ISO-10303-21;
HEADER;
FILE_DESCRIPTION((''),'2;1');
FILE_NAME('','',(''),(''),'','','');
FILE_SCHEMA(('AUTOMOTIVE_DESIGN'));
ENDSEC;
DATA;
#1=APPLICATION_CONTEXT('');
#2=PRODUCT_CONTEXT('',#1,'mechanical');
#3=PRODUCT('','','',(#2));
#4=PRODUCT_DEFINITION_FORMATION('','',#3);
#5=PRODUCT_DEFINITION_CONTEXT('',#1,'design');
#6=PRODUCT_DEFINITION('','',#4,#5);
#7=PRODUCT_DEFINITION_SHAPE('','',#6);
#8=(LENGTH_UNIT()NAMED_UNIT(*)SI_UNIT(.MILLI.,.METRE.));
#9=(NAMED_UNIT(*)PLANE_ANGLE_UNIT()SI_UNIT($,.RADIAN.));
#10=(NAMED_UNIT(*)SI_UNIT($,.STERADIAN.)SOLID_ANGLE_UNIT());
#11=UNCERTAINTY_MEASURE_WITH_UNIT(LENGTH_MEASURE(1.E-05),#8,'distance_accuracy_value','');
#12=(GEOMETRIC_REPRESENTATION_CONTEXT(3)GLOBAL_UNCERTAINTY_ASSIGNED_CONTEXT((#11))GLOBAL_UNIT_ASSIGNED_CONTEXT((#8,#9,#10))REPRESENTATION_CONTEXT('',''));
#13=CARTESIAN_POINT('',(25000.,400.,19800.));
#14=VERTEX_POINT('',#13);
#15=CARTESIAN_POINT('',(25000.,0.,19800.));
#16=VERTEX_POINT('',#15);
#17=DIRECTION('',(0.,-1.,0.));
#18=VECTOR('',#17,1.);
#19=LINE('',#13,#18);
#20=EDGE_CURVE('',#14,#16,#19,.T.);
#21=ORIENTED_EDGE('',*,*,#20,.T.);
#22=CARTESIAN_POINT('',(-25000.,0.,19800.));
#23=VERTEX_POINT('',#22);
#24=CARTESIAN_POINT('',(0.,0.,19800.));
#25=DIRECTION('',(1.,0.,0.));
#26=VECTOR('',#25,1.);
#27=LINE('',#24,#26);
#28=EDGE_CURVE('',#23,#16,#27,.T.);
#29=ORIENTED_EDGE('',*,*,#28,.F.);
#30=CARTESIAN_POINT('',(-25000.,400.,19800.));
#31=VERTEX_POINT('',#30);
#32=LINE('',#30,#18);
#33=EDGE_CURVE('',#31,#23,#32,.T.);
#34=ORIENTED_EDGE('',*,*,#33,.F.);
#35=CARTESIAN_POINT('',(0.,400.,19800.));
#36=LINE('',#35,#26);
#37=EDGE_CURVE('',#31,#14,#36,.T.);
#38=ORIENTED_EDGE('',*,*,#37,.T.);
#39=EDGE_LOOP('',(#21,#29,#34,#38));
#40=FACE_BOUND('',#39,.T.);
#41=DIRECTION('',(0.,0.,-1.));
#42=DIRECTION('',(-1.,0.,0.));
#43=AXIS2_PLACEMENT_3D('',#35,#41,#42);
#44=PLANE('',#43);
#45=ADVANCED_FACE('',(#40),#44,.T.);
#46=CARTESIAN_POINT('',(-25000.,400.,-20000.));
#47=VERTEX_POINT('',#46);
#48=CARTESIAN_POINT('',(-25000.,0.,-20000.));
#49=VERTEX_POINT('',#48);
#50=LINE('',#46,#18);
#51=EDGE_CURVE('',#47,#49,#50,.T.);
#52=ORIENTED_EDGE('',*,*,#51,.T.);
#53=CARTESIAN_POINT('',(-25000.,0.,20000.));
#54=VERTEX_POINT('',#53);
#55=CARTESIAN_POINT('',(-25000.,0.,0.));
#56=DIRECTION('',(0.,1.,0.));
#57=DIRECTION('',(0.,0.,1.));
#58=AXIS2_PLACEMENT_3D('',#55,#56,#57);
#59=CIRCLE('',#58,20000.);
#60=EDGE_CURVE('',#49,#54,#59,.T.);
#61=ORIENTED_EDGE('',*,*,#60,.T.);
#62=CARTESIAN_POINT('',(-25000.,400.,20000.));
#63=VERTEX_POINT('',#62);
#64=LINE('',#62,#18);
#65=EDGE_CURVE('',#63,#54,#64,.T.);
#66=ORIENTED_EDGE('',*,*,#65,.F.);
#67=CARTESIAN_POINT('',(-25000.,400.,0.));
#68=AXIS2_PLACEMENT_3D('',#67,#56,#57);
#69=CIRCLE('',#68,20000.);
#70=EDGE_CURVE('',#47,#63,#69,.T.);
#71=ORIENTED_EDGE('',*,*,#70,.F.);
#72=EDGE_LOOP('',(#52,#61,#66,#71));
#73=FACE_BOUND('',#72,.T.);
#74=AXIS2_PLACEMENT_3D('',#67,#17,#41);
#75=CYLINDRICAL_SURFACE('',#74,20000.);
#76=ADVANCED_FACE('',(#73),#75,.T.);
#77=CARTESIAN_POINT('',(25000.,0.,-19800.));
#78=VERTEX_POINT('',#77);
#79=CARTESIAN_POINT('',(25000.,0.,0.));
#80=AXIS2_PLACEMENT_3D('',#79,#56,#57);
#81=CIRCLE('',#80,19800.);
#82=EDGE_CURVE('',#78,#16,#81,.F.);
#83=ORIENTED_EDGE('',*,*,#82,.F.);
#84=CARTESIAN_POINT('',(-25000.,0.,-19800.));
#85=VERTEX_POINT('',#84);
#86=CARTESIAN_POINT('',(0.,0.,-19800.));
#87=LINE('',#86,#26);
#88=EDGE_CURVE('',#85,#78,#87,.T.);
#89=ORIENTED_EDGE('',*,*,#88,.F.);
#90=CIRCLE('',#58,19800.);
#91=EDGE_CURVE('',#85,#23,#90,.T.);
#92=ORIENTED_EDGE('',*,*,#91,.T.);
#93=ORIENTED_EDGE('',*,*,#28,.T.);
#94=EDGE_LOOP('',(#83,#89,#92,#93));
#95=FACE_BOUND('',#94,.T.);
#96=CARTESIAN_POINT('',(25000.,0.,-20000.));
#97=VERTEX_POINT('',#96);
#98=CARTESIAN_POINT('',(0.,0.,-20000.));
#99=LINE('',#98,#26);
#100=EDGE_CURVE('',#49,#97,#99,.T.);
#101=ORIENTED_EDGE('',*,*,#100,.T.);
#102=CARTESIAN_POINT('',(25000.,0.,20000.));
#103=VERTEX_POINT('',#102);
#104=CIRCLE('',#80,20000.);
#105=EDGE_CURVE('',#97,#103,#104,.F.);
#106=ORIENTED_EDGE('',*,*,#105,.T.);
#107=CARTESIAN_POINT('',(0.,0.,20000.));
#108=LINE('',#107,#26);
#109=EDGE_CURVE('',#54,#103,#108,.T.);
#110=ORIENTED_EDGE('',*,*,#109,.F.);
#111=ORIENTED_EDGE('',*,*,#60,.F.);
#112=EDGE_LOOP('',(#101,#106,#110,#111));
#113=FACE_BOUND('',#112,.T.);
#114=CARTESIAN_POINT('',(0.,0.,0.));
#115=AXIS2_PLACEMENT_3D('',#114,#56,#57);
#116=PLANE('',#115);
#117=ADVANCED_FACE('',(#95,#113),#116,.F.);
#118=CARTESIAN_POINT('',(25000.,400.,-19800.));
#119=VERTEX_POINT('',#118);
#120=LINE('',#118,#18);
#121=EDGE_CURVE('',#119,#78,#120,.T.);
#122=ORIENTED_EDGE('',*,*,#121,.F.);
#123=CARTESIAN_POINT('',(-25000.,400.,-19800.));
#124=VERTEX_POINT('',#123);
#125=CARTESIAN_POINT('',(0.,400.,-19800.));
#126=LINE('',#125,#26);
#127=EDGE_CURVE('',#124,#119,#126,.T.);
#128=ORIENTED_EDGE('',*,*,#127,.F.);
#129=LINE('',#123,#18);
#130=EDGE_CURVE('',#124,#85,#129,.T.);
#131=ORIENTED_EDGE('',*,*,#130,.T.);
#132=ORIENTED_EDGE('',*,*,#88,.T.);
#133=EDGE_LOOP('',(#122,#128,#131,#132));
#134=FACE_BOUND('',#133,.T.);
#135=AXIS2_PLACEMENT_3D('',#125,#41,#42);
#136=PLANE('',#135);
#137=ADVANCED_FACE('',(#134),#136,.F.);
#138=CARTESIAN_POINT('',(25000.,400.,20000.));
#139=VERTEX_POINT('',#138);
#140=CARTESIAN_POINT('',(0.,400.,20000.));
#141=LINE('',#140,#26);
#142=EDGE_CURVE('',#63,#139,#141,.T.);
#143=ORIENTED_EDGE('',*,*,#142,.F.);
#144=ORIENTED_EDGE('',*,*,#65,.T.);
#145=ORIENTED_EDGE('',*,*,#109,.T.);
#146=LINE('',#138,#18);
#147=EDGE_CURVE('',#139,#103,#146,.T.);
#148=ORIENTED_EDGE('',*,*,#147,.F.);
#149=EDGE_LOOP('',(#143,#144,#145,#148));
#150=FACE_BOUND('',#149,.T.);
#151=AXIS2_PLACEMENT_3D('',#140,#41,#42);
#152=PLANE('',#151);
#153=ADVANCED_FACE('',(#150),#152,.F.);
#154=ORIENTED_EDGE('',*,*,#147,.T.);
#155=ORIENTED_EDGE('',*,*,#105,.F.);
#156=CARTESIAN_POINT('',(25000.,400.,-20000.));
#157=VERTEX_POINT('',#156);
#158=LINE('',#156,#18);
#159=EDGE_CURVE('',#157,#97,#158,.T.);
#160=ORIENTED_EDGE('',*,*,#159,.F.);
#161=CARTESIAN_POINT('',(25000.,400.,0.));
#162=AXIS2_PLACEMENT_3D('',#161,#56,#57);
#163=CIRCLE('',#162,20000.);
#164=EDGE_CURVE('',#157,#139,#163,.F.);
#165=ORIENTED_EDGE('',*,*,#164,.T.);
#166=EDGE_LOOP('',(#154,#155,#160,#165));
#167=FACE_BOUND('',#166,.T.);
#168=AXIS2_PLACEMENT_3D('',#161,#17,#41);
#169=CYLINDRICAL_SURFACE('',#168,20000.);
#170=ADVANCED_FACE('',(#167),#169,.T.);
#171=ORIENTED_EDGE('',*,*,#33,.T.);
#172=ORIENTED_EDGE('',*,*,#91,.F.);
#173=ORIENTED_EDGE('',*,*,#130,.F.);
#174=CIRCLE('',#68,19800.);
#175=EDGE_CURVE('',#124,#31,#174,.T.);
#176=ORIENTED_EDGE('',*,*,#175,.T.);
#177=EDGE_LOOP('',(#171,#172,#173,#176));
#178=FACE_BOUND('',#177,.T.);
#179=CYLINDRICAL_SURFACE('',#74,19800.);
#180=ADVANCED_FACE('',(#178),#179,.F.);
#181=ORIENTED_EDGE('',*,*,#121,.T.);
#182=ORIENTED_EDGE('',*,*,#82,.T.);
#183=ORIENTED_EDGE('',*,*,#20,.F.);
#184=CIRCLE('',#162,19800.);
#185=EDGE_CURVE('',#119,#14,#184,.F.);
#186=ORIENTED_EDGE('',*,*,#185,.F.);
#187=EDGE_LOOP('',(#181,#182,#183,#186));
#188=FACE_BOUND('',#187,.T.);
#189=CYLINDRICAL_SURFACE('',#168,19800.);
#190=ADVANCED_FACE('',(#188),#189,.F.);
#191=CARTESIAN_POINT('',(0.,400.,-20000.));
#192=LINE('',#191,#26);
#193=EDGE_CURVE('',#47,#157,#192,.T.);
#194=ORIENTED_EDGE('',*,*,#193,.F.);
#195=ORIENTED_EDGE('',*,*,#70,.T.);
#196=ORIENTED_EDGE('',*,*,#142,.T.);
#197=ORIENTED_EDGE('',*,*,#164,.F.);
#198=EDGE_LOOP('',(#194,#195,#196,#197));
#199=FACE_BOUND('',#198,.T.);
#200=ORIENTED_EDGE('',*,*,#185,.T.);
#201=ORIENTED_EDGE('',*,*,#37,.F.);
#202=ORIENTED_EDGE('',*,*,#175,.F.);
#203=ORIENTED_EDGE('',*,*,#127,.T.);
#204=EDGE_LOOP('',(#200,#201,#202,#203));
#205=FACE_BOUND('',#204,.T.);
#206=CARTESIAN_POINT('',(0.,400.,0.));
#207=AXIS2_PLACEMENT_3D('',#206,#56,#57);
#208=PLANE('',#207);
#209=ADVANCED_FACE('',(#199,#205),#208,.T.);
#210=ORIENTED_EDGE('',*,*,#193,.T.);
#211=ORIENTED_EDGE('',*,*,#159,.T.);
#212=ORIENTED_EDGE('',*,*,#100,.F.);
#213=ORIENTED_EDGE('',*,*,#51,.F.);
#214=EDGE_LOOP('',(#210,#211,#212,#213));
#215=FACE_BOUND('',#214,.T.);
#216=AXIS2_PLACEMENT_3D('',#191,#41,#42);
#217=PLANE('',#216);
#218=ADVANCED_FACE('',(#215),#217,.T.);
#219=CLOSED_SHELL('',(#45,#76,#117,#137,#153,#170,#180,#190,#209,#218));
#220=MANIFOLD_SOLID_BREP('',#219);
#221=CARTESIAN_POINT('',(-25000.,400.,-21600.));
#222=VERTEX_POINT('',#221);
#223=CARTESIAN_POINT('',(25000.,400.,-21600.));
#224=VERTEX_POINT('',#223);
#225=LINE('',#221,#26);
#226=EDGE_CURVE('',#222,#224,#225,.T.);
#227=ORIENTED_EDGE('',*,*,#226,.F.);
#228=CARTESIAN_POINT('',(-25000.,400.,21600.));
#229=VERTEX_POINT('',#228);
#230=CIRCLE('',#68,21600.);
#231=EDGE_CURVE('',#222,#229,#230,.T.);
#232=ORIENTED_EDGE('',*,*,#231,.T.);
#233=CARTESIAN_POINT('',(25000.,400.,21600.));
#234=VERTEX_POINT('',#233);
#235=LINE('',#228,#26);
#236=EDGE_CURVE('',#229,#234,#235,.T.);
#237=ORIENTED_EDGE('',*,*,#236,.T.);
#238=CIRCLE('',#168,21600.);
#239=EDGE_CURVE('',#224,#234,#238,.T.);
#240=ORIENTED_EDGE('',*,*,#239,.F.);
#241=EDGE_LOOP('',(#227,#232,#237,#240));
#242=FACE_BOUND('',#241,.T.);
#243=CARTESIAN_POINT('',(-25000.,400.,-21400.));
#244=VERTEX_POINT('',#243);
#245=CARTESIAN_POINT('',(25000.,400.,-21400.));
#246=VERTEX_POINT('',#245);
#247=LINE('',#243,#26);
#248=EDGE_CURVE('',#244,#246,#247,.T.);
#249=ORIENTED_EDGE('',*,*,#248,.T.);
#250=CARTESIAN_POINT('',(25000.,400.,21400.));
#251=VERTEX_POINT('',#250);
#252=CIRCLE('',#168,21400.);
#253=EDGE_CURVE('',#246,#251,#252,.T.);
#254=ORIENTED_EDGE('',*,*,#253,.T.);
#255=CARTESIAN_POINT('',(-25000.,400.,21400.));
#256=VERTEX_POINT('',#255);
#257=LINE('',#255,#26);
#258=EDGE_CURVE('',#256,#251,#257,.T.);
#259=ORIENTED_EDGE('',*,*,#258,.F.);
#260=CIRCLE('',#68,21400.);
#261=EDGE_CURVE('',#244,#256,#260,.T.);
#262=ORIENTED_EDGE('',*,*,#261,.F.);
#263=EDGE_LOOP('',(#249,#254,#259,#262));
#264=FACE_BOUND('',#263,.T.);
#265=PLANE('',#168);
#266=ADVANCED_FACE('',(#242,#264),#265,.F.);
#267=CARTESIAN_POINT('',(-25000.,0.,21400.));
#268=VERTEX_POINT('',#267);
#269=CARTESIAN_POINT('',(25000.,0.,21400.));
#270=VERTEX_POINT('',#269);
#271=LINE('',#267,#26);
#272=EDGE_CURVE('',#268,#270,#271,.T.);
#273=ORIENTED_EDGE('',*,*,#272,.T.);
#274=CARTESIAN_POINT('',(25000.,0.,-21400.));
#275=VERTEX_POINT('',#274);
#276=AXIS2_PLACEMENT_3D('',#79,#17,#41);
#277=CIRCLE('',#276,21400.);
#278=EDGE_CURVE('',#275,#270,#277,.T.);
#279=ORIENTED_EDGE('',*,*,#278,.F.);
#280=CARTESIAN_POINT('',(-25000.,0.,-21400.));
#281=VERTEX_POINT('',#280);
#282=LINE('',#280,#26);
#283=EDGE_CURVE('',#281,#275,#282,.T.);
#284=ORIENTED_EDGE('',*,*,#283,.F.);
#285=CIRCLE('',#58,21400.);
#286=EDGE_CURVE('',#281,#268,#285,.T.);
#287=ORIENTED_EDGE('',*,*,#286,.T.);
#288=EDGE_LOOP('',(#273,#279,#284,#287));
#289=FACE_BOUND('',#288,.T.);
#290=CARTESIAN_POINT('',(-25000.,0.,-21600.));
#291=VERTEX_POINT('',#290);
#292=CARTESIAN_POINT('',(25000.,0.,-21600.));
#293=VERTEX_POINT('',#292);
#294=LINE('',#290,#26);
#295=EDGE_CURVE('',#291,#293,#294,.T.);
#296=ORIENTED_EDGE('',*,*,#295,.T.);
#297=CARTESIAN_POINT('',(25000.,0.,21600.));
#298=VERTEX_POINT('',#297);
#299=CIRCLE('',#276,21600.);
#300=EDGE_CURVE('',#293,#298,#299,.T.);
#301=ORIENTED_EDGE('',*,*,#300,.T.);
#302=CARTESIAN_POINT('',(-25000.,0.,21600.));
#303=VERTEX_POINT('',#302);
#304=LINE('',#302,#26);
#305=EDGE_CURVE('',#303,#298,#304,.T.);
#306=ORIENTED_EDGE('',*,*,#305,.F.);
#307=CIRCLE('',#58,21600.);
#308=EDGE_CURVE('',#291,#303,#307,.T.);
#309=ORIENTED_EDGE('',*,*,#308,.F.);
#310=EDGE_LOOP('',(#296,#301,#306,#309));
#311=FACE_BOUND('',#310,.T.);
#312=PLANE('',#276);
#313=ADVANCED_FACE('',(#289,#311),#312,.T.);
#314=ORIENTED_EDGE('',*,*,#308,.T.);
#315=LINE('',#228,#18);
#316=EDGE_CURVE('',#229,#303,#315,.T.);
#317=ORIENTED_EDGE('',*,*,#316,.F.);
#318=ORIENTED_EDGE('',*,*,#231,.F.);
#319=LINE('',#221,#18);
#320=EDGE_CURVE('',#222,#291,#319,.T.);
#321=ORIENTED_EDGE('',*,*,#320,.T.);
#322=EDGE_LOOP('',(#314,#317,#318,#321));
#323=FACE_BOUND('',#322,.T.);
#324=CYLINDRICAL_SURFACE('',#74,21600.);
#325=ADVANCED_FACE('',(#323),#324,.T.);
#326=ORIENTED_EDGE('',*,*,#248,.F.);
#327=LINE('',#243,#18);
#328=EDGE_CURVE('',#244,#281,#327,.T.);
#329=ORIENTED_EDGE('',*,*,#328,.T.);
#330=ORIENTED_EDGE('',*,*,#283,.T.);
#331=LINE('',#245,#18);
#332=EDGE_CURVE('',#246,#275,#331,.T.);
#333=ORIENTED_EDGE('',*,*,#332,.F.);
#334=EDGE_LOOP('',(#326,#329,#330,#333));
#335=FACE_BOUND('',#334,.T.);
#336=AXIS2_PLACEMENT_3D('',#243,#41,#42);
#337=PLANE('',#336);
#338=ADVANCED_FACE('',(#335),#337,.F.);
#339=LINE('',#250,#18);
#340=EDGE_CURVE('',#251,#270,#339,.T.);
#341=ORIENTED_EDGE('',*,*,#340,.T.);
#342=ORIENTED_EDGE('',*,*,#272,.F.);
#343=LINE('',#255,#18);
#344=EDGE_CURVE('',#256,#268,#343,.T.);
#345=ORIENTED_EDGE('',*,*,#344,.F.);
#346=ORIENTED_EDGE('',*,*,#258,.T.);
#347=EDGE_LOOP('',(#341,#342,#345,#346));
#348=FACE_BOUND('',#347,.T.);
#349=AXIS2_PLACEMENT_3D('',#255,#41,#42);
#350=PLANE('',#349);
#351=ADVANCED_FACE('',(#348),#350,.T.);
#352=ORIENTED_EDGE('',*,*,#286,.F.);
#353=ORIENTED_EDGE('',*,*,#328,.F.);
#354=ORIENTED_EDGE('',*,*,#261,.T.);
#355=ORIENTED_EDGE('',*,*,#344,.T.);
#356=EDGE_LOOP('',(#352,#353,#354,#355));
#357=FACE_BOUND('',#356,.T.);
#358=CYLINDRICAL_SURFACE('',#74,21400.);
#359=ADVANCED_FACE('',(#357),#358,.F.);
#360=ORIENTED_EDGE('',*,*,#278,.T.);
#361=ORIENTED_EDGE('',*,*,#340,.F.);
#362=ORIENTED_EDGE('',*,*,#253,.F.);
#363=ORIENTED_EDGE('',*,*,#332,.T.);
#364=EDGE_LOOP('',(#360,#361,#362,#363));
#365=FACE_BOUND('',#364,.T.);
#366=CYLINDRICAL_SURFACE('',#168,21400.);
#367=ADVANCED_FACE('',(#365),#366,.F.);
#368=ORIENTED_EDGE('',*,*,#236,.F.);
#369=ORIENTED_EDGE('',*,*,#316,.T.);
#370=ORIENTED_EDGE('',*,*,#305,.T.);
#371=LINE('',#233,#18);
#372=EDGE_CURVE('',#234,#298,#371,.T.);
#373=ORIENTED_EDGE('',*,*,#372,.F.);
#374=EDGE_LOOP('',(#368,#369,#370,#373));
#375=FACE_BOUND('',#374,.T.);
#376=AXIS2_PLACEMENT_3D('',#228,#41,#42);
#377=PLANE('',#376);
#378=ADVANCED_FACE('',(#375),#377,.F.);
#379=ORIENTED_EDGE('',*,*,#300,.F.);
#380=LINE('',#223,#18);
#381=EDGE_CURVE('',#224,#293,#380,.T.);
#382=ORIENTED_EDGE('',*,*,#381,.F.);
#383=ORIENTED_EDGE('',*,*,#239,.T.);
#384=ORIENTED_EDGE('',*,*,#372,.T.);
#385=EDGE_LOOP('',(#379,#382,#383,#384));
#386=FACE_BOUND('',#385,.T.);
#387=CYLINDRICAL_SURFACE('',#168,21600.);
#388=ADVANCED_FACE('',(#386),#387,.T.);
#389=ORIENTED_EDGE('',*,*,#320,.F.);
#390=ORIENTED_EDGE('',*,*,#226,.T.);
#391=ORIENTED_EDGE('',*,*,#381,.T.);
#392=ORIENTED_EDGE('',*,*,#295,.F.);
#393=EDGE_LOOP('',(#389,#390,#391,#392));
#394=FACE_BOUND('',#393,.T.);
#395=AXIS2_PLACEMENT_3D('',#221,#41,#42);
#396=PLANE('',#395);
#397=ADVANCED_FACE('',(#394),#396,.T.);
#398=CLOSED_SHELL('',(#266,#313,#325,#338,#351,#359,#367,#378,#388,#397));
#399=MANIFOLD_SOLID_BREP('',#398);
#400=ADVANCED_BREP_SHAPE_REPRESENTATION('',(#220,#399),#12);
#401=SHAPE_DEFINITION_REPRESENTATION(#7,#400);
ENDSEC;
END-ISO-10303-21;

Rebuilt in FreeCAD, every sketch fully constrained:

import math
import FreeCAD as App
import Part
import Sketcher

V = App.Vector

doc = App.newDocument("Part")
body = doc.addObject("PartDesign::Body", "Body")

# Sketch on XZ plane
sketch1 = doc.addObject("Sketcher::SketchObject", "Sketch")
body.addObject(sketch1)
sketch1.AttachmentSupport = (doc.XZ_Plane, [""])
sketch1.MapMode = "FlatFace"
sketch1.addGeometry([
    Part.ArcOfCircle(Part.Circle(V(25000, 0, 0), V(0, 0, 1), 20000), math.radians(-90), math.radians(90)),  # 0
    Part.LineSegment(V(25000, -20000, 0), V(-25000, -20000, 0)),  # 1
    Part.ArcOfCircle(Part.Circle(V(-25000, 0, 0), V(0, 0, 1), 20000), math.radians(90), math.radians(270)),  # 2
    Part.LineSegment(V(-25000, 20000, 0), V(25000, 20000, 0)),  # 3
    Part.LineSegment(V(-25000, -19800, 0), V(25000, -19800, 0)),  # 4
    Part.ArcOfCircle(Part.Circle(V(25000, 0, 0), V(0, 0, 1), 19800), math.radians(-90), math.radians(90)),  # 5
    Part.LineSegment(V(25000, 19800, 0), V(-25000, 19800, 0)),  # 6
    Part.ArcOfCircle(Part.Circle(V(-25000, 0, 0), V(0, 0, 1), 19800), math.radians(90), math.radians(270)),  # 7
], False)
sketch1.addConstraint([
    Sketcher.Constraint("Coincident", 0, 1, 1, 1),
    Sketcher.Constraint("Coincident", 1, 2, 2, 2),
    Sketcher.Constraint("Coincident", 2, 1, 3, 1),
    Sketcher.Constraint("Coincident", 3, 2, 0, 2),
    Sketcher.Constraint("Coincident", 4, 2, 5, 1),
    Sketcher.Constraint("Coincident", 5, 2, 6, 1),
    Sketcher.Constraint("Coincident", 6, 2, 7, 1),
    Sketcher.Constraint("Coincident", 7, 2, 4, 1),
    Sketcher.Constraint("Horizontal", 1),
    Sketcher.Constraint("Horizontal", 3),
    Sketcher.Constraint("Horizontal", 4),
    Sketcher.Constraint("Horizontal", 6),
    Sketcher.Constraint("Coincident", 5, 3, 0, 3),
    Sketcher.Constraint("Symmetric", 0, 3, 2, 3, -1, 1),
    Sketcher.Constraint("Vertical", 7, 3, 1, 2),
    Sketcher.Constraint("Vertical", 3, 2, 4, 2),
    Sketcher.Constraint("Equal", 1, 3),
    Sketcher.Constraint("Equal", 3, 4),
    Sketcher.Constraint("Equal", 4, 6),
    Sketcher.Constraint("Radius", 0, 20000.0),
    Sketcher.Constraint("Radius", 5, 19800.0),
    Sketcher.Constraint("DistanceX", 1, 2, 1, 1, 50000.0),
    Sketcher.Constraint("DistanceX", -1, 1, 0, 3, 25000.0),
    Sketcher.Constraint("DistanceX", 7, 3, -1, 1, 25000.0),
    Sketcher.Constraint("DistanceX", -1, 1, 3, 2, 25000.0),
    Sketcher.Constraint("DistanceX", 6, 2, -1, 1, 25000.0),
])
pad1 = doc.addObject("PartDesign::Pad", "Pad")
body.addObject(pad1)
pad1.Profile = sketch1
pad1.Length = 400
pad1.Reversed = True
body2 = doc.addObject("PartDesign::Body", "Body001")

# Sketch on XZ plane
sketch2 = doc.addObject("Sketcher::SketchObject", "Sketch001")
body2.addObject(sketch2)
sketch2.AttachmentSupport = (doc.getObject("XZ_Plane001"), [""])
sketch2.MapMode = "FlatFace"
sketch2.addGeometry([
    Part.LineSegment(V(-25000, 21600, 0), V(25000, 21600, 0)),  # 0
    Part.ArcOfCircle(Part.Circle(V(25000, 0, 0), V(0, 0, 1), 21600), math.radians(-90), math.radians(90)),  # 1
    Part.LineSegment(V(25000, -21600, 0), V(-25000, -21600, 0)),  # 2
    Part.ArcOfCircle(Part.Circle(V(-25000, 0, 0), V(0, 0, 1), 21600), math.radians(90), math.radians(270)),  # 3
    Part.LineSegment(V(25000, 21400, 0), V(-25000, 21400, 0)),  # 4
    Part.ArcOfCircle(Part.Circle(V(-25000, 0, 0), V(0, 0, 1), 21400), math.radians(90), math.radians(270)),  # 5
    Part.LineSegment(V(-25000, -21400, 0), V(25000, -21400, 0)),  # 6
    Part.ArcOfCircle(Part.Circle(V(25000, 0, 0), V(0, 0, 1), 21400), math.radians(-90), math.radians(90)),  # 7
], False)
sketch2.addConstraint([
    Sketcher.Constraint("Coincident", 0, 2, 1, 2),
    Sketcher.Constraint("Coincident", 1, 1, 2, 1),
    Sketcher.Constraint("Coincident", 2, 2, 3, 2),
    Sketcher.Constraint("Coincident", 3, 1, 0, 1),
    Sketcher.Constraint("Coincident", 4, 2, 5, 1),
    Sketcher.Constraint("Coincident", 5, 2, 6, 1),
    Sketcher.Constraint("Coincident", 6, 2, 7, 1),
    Sketcher.Constraint("Coincident", 7, 2, 4, 1),
    Sketcher.Constraint("Horizontal", 0),
    Sketcher.Constraint("Horizontal", 2),
    Sketcher.Constraint("Horizontal", 4),
    Sketcher.Constraint("Horizontal", 6),
    Sketcher.Constraint("Coincident", 5, 3, 3, 3),
    Sketcher.Constraint("Symmetric", 1, 3, 3, 3, -1, 1),
    Sketcher.Constraint("Vertical", 7, 3, 0, 2),
    Sketcher.Constraint("Vertical", 5, 3, 2, 2),
    Sketcher.Constraint("Equal", 0, 2),
    Sketcher.Constraint("Equal", 2, 4),
    Sketcher.Constraint("Equal", 4, 6),
    Sketcher.Constraint("Radius", 1, 21600.0),
    Sketcher.Constraint("Radius", 5, 21400.0),
    Sketcher.Constraint("DistanceX", 0, 1, 0, 2, 50000.0),
    Sketcher.Constraint("DistanceX", -1, 1, 1, 3, 25000.0),
    Sketcher.Constraint("DistanceX", -1, 1, 7, 3, 25000.0),
    Sketcher.Constraint("DistanceX", 4, 2, -1, 1, 25000.0),
    Sketcher.Constraint("DistanceX", -1, 1, 6, 2, 25000.0),
])
pad2 = doc.addObject("PartDesign::Pad", "Pad001")
body2.addObject(pad2)
pad2.Profile = sketch2
pad2.Length = 400
pad2.Reversed = True

doc.recompute()
